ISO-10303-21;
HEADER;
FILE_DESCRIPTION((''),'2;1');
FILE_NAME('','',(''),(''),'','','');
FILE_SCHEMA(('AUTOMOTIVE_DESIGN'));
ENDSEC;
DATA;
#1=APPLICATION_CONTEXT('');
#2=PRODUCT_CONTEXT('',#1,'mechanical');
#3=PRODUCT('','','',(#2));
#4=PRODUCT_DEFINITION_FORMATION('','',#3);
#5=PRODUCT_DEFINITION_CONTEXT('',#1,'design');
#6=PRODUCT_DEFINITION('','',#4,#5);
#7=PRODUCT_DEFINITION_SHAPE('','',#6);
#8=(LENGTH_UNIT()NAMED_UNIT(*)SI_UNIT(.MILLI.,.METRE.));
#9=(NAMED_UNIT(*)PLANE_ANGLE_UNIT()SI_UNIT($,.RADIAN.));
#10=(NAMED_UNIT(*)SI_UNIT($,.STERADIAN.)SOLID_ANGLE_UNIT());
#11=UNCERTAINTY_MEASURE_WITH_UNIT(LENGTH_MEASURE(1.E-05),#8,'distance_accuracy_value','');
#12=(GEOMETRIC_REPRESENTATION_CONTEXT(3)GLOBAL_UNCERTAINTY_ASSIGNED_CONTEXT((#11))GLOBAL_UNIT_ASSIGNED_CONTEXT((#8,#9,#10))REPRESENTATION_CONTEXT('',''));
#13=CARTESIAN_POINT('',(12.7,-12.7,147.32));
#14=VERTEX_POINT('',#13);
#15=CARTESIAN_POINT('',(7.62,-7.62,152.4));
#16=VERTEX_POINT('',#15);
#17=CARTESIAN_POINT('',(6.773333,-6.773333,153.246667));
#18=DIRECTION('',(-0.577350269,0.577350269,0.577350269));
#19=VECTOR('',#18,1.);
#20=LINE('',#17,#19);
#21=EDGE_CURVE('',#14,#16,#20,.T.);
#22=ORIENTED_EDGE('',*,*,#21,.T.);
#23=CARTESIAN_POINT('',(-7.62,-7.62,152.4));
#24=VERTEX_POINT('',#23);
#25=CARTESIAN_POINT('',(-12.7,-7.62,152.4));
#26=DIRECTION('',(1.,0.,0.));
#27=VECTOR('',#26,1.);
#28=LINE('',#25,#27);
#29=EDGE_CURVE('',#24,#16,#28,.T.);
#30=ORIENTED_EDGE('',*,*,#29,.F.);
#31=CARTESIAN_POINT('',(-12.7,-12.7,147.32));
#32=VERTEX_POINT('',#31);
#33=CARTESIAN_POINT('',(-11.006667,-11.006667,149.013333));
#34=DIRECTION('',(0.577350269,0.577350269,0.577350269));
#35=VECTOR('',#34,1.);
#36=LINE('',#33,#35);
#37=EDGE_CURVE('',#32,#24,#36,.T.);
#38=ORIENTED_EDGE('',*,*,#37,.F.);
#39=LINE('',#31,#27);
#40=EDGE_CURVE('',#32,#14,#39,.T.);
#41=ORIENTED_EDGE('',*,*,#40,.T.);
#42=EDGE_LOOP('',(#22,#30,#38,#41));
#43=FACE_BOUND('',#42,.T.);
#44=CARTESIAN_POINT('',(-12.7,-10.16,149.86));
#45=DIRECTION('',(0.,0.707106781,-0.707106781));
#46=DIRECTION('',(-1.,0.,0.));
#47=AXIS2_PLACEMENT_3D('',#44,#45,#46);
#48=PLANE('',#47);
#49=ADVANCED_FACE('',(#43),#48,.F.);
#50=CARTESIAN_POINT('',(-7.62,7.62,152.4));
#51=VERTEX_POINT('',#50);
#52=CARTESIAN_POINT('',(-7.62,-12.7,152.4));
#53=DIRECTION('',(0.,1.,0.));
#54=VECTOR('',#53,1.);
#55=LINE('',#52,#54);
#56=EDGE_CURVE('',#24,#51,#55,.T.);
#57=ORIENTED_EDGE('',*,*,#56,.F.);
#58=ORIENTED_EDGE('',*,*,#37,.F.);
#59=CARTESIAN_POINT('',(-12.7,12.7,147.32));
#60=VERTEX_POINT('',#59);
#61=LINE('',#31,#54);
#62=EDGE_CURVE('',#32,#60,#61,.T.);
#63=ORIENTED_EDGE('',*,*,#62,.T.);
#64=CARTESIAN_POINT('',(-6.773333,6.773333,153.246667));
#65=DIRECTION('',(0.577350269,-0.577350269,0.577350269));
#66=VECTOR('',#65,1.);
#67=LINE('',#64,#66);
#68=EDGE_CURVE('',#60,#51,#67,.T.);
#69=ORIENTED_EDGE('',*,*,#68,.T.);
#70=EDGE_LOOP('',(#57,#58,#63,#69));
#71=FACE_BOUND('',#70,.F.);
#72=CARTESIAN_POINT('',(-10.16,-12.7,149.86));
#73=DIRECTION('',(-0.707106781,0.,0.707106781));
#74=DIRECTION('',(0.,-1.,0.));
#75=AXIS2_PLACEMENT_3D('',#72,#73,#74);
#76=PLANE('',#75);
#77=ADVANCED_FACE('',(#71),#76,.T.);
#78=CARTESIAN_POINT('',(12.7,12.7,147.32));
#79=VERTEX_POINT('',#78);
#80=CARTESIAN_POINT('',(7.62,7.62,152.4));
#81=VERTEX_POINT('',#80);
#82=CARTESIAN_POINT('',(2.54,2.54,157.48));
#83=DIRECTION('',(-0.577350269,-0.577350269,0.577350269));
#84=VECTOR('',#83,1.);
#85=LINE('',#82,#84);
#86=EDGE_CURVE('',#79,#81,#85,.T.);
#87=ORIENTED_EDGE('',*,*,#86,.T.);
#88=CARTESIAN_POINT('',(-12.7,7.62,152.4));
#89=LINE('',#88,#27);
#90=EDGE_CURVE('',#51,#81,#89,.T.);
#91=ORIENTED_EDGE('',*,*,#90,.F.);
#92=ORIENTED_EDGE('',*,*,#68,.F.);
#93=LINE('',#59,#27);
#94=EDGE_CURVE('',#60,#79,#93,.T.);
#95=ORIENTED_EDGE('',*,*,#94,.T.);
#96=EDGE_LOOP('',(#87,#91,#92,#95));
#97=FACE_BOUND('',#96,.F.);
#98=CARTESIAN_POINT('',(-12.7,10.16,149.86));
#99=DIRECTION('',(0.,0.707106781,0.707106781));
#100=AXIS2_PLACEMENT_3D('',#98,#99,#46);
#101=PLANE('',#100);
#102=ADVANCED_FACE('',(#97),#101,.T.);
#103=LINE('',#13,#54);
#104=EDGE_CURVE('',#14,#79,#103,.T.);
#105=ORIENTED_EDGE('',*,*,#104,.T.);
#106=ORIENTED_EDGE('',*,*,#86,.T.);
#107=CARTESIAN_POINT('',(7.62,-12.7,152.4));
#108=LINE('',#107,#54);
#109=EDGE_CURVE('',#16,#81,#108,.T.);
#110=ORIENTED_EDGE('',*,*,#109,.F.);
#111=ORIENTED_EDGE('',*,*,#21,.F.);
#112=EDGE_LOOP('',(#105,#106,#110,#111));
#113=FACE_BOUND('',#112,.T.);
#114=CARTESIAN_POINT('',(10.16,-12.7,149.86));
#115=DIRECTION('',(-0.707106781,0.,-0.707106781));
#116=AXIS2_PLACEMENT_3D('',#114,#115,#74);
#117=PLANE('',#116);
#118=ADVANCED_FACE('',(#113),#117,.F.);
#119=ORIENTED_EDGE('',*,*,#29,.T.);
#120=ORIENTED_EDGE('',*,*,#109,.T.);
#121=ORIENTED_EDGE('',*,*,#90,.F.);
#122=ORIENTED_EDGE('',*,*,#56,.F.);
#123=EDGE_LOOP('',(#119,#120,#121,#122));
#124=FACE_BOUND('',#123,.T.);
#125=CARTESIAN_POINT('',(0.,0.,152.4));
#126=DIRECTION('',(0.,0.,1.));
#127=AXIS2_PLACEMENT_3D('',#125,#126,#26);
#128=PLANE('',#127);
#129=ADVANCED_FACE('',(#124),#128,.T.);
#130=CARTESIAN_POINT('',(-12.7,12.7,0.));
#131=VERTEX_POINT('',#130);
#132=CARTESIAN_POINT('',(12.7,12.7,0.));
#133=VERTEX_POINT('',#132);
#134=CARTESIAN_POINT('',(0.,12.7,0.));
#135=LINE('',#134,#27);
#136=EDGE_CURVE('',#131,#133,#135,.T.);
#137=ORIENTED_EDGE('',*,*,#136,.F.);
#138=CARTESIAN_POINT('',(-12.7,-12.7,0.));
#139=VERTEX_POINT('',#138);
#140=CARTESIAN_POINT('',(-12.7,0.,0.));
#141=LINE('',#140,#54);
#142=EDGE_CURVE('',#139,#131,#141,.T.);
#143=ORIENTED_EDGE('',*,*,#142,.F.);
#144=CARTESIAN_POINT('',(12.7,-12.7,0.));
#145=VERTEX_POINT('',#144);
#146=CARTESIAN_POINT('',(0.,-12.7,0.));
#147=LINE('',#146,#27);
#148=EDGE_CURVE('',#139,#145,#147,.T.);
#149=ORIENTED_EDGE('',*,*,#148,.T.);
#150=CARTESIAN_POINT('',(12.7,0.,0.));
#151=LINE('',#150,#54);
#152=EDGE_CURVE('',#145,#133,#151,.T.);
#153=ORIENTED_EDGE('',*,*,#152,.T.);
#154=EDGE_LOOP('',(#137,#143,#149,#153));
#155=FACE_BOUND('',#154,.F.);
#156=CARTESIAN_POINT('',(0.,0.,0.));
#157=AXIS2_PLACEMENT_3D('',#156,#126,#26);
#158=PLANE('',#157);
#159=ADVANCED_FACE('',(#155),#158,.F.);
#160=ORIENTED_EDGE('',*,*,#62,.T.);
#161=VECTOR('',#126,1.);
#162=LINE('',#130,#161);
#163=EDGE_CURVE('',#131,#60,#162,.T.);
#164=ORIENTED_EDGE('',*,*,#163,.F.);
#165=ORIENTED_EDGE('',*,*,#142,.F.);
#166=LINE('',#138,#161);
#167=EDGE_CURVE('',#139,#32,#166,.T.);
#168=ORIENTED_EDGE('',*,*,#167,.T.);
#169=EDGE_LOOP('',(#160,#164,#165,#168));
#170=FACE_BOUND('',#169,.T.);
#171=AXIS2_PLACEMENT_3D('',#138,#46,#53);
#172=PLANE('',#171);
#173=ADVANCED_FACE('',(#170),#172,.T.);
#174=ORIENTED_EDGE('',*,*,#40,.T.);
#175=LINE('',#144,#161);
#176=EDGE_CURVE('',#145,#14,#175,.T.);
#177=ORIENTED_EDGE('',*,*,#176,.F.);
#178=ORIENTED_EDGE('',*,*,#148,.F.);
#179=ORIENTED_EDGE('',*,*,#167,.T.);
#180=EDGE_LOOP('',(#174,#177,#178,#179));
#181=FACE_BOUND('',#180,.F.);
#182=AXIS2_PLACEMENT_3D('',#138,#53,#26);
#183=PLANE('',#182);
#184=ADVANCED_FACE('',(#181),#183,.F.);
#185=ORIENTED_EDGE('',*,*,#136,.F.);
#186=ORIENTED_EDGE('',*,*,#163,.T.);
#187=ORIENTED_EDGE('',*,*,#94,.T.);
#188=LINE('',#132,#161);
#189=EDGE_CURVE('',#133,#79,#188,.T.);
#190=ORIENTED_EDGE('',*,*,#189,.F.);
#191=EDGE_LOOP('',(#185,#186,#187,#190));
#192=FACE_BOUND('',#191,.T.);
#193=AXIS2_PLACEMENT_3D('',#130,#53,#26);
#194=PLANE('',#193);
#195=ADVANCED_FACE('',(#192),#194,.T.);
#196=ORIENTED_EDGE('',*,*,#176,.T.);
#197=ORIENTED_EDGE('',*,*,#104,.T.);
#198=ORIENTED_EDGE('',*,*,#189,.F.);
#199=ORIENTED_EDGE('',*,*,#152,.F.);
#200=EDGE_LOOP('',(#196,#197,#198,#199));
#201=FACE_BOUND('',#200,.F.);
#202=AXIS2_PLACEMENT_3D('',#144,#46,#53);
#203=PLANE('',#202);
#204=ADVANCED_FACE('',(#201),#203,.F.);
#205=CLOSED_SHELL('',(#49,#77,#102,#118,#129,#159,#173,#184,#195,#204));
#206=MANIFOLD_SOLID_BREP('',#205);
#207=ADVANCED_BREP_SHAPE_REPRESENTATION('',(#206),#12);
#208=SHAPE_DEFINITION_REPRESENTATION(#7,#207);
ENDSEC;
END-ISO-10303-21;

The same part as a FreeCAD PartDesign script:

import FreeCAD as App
import Part
import Sketcher
Q = App.Units.Quantity


def edges_at(feature, points):
    """Names of the edges that pass closest to the given points."""
    edges = feature.Shape.Edges
    near = lambda p: min(range(len(edges)), key=lambda i: edges[i].distToShape(Part.Vertex(*p))[0])
    return sorted({f"Edge{near(p) + 1}" for p in points})


def add_polygon(sketch, points):
    """Adds a closed chain of lines whose ends are joined by coincident constraints."""
    first, n = sketch.GeometryCount, len(points)
    for a, b in zip(points, points[1:] + points[:1]):
        sketch.addGeometry(Part.LineSegment(App.Vector(*a, 0), App.Vector(*b, 0)), False)
    for i in range(n):
        sketch.addConstraint(Sketcher.Constraint("Coincident", first + i, 2, first + (i + 1) % n, 1))

doc = App.newDocument("Part")
params = doc.addObject("Spreadsheet::Sheet", "Params")
for row, (alias, value) in enumerate([
    ("sketch1_width", "1 in"),
    ("pad1_length", "6 in"),
    ("chamfer_size", "0.2 in"),
], start=1):
    params.set(f"A{row}", alias)
    params.set(f"B{row}", "=" + value)
    params.setAlias(f"B{row}", alias)

body = doc.addObject("PartDesign::Body", "Body")

# Sketch on XY plane
sketch1 = doc.addObject("Sketcher::SketchObject", "Sketch")
body.addObject(sketch1)
sketch1.AttachmentSupport = (doc.XY_Plane, [""])
sketch1.MapMode = "FlatFace"
add_polygon(sketch1, [(-13, 13), (-13, -13), (13, -13), (13, 13)])  # lines 0-3
sketch1.addConstraint(Sketcher.Constraint("Vertical", 0))
sketch1.addConstraint(Sketcher.Constraint("Horizontal", 1))
sketch1.addConstraint(Sketcher.Constraint("Vertical", 2))
sketch1.addConstraint(Sketcher.Constraint("Horizontal", 3))
sketch1.addConstraint(Sketcher.Constraint("Symmetric", 0, 2, 2, 2, -1, 1))
sketch1.addConstraint(Sketcher.Constraint("Equal", 3, 0))
sketch1.addConstraint(Sketcher.Constraint("DistanceX", 1, 1, 1, 2, Q("1 in")))
sketch1.setExpression("Constraints[10]", "Params.sketch1_width")
pad1 = doc.addObject("PartDesign::Pad", "Pad")
body.addObject(pad1)
pad1.Profile = sketch1
pad1.setExpression("Length", "Params.pad1_length")
doc.recompute()

chamfer = doc.addObject("PartDesign::Chamfer", "Chamfer")
body.addObject(chamfer)
chamfer.Base = (pad1, edges_at(pad1, [
    (-12.7, 0, 152.4),
    (0, 12.7, 152.4),
    (12.7, 0, 152.4),
    (0, -12.7, 152.4),
]))
chamfer.setExpression("Size", "Params.chamfer_size")

doc.recompute()
